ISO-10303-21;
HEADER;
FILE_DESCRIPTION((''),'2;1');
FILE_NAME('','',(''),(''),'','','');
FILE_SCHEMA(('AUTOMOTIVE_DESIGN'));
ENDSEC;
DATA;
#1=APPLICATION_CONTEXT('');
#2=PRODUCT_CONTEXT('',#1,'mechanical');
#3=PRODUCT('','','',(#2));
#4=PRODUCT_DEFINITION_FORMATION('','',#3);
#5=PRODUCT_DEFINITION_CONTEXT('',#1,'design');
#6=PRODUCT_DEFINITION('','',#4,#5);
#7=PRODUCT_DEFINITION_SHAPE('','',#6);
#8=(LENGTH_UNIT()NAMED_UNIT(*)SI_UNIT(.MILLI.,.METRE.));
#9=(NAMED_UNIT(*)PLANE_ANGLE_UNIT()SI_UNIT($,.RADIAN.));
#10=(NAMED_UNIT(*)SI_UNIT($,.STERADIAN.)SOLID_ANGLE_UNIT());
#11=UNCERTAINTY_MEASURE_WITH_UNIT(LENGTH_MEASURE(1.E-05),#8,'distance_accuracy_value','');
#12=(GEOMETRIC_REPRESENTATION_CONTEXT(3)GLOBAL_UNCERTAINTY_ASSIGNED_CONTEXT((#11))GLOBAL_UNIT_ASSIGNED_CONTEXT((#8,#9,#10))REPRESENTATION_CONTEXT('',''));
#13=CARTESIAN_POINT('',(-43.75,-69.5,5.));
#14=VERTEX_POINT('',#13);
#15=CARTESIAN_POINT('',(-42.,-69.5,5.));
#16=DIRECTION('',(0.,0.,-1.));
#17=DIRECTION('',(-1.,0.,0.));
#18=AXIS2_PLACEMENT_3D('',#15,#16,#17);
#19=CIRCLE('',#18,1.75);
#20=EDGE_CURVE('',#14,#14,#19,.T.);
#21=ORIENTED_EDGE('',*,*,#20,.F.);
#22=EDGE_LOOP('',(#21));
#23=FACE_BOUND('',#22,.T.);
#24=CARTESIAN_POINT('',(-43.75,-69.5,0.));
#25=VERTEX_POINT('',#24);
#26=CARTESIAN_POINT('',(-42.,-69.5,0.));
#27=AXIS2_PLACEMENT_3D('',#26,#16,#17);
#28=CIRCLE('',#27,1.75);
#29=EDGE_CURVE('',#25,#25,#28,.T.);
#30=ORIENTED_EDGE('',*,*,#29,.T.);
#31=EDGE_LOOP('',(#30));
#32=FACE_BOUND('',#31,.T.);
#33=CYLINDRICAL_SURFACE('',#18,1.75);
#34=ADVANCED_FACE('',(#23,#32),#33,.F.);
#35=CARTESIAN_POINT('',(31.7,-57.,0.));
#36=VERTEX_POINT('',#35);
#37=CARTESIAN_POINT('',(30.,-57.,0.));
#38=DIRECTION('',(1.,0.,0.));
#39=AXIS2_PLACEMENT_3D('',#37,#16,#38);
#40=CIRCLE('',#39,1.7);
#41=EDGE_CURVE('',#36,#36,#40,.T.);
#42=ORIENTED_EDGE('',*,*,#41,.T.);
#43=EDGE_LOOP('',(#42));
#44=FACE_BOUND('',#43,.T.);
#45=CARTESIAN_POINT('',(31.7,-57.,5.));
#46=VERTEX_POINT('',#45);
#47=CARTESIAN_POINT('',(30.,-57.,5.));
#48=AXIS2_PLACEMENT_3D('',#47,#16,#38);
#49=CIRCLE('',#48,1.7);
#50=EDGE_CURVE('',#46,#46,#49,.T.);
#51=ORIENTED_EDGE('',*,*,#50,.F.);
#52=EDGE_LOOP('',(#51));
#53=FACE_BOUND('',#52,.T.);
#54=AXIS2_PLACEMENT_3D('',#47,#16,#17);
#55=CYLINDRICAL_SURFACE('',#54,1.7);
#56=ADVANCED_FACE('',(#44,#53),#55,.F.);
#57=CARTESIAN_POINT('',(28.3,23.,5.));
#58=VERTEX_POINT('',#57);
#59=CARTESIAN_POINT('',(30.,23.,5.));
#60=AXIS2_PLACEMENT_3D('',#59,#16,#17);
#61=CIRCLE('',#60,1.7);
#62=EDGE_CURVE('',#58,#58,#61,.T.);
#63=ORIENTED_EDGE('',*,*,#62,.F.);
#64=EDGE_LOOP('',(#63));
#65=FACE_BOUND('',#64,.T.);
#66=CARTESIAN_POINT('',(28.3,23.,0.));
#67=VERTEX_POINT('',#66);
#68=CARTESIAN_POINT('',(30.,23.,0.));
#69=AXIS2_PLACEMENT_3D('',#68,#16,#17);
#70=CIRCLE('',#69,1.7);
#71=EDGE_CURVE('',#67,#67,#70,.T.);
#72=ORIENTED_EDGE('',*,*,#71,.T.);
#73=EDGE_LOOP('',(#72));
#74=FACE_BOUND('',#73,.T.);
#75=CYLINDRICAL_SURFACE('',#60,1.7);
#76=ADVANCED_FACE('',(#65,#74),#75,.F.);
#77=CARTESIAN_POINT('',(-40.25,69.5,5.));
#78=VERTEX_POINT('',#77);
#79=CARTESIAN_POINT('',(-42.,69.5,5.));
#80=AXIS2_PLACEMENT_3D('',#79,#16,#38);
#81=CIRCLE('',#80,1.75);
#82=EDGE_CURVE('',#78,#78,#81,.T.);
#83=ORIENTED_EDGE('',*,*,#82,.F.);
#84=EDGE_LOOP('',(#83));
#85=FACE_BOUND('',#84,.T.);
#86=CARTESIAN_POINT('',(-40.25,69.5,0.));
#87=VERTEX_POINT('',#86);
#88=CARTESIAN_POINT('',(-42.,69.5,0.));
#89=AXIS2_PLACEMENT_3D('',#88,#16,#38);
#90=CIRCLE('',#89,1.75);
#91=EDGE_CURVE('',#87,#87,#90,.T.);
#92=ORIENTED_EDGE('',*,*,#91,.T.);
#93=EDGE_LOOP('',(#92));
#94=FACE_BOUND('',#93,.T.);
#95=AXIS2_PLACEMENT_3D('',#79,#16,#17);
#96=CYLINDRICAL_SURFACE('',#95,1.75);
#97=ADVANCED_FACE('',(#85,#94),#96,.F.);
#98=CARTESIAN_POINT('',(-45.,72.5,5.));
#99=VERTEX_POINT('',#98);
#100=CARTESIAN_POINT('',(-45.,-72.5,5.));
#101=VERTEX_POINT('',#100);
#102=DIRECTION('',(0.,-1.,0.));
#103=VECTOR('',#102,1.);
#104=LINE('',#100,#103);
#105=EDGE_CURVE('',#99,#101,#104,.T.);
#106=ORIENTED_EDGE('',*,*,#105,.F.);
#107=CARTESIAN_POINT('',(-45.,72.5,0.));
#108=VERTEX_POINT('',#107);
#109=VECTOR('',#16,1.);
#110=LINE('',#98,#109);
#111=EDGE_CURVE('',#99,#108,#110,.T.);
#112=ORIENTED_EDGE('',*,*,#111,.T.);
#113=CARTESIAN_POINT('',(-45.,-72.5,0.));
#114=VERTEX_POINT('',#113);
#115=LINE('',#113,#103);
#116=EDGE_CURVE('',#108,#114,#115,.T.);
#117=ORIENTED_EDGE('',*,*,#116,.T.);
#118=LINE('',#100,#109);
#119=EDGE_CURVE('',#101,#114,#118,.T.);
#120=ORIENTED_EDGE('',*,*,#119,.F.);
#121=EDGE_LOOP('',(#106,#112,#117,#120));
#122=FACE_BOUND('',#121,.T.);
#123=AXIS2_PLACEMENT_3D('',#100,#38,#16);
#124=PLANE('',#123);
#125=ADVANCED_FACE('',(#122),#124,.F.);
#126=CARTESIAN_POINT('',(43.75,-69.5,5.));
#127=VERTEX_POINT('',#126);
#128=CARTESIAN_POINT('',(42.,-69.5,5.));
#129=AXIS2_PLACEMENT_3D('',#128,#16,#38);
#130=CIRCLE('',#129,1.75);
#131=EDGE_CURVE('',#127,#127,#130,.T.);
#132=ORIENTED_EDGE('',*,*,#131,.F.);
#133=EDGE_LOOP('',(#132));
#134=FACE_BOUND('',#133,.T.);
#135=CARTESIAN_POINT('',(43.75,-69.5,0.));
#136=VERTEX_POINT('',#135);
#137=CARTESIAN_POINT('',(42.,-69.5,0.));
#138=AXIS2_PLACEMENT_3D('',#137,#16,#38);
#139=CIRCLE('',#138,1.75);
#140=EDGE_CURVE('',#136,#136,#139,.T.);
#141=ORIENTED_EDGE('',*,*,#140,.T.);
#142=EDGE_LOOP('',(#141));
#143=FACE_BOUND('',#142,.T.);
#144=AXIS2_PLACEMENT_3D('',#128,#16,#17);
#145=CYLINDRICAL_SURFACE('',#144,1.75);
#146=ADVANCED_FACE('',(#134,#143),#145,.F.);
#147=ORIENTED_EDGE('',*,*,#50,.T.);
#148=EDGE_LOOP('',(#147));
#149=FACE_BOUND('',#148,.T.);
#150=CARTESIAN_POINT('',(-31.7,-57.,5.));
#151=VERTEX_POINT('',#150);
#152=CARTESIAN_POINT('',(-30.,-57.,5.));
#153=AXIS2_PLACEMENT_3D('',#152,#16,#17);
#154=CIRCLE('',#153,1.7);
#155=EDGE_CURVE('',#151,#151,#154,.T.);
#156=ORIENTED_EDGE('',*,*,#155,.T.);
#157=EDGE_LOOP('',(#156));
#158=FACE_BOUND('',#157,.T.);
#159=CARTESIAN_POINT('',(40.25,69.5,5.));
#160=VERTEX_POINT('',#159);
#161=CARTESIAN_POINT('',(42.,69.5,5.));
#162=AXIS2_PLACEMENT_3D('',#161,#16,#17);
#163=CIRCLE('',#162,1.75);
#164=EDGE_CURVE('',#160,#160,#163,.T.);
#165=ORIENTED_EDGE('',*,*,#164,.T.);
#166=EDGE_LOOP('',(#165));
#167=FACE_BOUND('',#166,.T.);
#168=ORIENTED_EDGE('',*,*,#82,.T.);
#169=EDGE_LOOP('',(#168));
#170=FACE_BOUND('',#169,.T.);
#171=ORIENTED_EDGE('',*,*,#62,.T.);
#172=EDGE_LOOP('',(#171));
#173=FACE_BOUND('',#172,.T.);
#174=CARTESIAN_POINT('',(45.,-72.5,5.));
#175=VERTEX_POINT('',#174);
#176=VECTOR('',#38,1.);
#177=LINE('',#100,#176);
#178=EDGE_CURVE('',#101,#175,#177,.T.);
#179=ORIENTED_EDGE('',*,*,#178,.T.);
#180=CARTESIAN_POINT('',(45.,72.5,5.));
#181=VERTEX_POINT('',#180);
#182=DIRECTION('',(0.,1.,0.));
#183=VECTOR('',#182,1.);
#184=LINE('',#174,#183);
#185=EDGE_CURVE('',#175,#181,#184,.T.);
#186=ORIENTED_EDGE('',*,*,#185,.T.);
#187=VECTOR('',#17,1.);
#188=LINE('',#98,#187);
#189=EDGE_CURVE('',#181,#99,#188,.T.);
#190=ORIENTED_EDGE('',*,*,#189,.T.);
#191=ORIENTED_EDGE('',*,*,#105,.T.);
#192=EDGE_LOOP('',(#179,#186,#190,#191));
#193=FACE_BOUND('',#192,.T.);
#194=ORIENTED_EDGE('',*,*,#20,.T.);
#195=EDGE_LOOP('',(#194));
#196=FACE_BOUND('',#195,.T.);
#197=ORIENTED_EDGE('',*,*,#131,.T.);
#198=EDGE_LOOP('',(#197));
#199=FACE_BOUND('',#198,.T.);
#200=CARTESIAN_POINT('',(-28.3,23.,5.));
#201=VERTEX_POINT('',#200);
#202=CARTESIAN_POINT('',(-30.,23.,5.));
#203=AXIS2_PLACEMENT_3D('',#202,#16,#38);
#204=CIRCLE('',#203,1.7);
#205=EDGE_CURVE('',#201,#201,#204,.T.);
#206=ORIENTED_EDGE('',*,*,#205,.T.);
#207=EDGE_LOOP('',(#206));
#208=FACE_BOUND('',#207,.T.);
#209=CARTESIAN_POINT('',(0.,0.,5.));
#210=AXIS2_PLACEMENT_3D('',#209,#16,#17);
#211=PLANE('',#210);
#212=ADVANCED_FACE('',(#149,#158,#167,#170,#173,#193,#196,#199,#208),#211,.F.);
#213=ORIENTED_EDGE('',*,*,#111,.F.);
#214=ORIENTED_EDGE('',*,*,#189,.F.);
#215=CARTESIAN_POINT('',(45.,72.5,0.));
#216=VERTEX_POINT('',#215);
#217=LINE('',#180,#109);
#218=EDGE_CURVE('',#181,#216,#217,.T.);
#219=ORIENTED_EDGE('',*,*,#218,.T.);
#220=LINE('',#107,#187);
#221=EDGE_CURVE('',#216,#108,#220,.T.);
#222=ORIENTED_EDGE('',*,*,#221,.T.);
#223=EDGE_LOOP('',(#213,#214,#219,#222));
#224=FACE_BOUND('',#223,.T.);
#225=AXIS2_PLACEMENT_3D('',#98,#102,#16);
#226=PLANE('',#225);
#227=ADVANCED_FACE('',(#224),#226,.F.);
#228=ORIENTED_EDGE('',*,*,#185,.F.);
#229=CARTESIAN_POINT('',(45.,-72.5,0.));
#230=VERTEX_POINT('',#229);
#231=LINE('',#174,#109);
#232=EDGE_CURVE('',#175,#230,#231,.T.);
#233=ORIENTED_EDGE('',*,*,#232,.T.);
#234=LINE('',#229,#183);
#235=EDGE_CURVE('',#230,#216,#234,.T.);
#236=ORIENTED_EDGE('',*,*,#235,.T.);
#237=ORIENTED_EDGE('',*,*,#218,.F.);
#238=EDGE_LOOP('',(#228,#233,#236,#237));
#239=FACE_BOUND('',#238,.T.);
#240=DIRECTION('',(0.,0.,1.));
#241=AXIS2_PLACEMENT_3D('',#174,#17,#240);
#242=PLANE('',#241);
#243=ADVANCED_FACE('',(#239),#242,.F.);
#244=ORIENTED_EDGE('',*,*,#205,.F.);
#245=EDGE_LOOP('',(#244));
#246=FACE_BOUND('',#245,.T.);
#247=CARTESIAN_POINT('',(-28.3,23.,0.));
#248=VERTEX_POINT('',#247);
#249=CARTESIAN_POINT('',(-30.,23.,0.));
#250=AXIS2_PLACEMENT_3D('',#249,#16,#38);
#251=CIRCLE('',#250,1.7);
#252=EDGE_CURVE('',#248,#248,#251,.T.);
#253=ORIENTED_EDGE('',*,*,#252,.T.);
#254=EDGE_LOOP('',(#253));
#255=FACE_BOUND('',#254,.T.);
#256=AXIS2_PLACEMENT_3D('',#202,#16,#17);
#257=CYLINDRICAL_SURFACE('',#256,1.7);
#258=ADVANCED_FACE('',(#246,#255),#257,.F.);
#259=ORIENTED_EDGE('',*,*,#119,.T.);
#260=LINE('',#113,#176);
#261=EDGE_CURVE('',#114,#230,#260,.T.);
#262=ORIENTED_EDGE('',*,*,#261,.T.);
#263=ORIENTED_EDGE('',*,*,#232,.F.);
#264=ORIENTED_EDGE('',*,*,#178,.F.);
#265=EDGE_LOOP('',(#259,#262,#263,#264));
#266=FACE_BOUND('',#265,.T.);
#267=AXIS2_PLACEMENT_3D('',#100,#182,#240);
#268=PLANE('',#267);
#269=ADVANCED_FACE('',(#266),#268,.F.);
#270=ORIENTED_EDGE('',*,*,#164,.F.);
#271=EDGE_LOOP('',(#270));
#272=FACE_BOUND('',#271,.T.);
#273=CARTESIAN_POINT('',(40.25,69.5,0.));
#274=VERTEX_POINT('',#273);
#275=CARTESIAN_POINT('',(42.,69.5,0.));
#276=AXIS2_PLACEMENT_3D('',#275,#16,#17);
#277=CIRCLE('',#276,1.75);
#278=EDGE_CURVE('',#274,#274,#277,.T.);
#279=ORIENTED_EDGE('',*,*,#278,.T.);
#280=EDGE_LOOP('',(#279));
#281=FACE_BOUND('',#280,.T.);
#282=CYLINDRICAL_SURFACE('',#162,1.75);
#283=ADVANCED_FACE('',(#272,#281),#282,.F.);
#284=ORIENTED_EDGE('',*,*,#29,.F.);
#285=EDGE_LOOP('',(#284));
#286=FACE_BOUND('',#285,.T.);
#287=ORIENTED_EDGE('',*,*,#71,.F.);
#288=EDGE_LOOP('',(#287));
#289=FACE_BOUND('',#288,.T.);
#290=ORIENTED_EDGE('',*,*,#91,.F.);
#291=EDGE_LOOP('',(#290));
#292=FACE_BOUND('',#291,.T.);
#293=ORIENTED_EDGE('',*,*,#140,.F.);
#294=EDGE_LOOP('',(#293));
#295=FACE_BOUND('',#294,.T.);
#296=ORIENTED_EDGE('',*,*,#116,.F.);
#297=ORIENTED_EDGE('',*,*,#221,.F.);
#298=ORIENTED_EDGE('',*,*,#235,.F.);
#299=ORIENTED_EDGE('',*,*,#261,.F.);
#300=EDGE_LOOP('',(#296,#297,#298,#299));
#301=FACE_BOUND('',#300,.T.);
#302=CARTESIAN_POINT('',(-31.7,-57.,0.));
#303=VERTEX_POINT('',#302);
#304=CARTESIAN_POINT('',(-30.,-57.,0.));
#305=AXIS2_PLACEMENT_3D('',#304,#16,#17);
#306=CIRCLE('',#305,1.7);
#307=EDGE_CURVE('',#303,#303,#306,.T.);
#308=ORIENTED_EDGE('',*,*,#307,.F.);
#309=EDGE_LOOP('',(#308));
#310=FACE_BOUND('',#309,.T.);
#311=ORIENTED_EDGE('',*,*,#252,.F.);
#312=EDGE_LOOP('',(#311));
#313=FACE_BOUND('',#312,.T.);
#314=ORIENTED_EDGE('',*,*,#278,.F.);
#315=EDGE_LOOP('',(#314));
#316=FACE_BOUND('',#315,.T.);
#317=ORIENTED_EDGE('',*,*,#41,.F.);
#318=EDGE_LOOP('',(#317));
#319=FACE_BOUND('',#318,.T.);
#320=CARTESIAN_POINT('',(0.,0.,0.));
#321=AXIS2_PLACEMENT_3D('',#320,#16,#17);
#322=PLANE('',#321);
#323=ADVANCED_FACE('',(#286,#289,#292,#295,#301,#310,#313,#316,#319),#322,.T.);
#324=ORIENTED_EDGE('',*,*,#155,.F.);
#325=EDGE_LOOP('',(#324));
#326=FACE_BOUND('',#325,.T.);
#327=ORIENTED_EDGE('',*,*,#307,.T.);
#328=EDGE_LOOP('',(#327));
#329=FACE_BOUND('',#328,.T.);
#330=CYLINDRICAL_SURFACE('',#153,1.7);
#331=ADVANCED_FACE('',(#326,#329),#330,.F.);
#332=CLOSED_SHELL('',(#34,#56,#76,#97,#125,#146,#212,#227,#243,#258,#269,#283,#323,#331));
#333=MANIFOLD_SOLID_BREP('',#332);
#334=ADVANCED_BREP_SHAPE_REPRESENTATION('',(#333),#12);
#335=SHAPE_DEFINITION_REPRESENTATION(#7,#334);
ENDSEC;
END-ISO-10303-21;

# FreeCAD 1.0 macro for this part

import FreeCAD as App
import Part
import Sketcher
Q = App.Units.Quantity


def add_polygon(sketch, points):
    """Adds a closed chain of lines whose ends are joined by coincident constraints."""
    first, n = sketch.GeometryCount, len(points)
    for a, b in zip(points, points[1:] + points[:1]):
        sketch.addGeometry(Part.LineSegment(App.Vector(*a, 0), App.Vector(*b, 0)), False)
    for i in range(n):
        sketch.addConstraint(Sketcher.Constraint("Coincident", first + i, 2, first + (i + 1) % n, 1))

doc = App.newDocument("Part")
params = doc.addObject("Spreadsheet::Sheet", "Params")
for row, (alias, value) in enumerate([
    ("sketch1_width", "90 mm"),
    ("sketch1_height", "145 mm"),
    ("pad1_length", "5 mm"),
    ("sketch2_diameter", "3.5 mm"),
    ("sketch3_diameter", "3.4 mm"),
], start=1):
    params.set(f"A{row}", alias)
    params.set(f"B{row}", "=" + value)
    params.setAlias(f"B{row}", alias)

body = doc.addObject("PartDesign::Body", "Body")

sketch1 = doc.addObject("Sketcher::SketchObject", "Sketch")
body.addObject(sketch1)
sketch1.AttachmentSupport = (doc.XY_Plane, [""])
sketch1.MapMode = "FlatFace"
add_polygon(sketch1, [(-45, 72), (-45, -72), (45, -72), (45, 72)])
sketch1.addConstraint(Sketcher.Constraint("Vertical", 0))
sketch1.addConstraint(Sketcher.Constraint("Horizontal", 1))
sketch1.addConstraint(Sketcher.Constraint("Vertical", 2))
sketch1.addConstraint(Sketcher.Constraint("Horizontal", 3))
sketch1.addConstraint(Sketcher.Constraint("Symmetric", 0, 2, 2, 2, -1, 1))
sketch1.addConstraint(Sketcher.Constraint("DistanceX", 1, 1, 1, 2, Q("90 mm")))
sketch1.addConstraint(Sketcher.Constraint("DistanceY", 0, 2, 0, 1, Q("145 mm")))
sketch1.setExpression("Constraints[9]", "Params.sketch1_width")
sketch1.setExpression("Constraints[10]", "Params.sketch1_height")
pad1 = doc.addObject("PartDesign::Pad", "Pad")
body.addObject(pad1)
pad1.Profile = sketch1
pad1.setExpression("Length", "Params.pad1_length")

sketch2 = doc.addObject("Sketcher::SketchObject", "Sketch001")
body.addObject(sketch2)
sketch2.AttachmentSupport = (doc.XY_Plane, [""])
sketch2.MapMode = "FlatFace"
sketch2.addGeometry(Part.Circle(App.Vector(42, 69.5, 0), App.Vector(0, 0, 1), 1.8), False)
sketch2.addGeometry(Part.Circle(App.Vector(42, -69.5, 0), App.Vector(0, 0, 1), 1.8), False)
sketch2.addGeometry(Part.Circle(App.Vector(-42, 69.5, 0), App.Vector(0, 0, 1), 1.8), False)
sketch2.addGeometry(Part.Circle(App.Vector(-42, -69.5, 0), App.Vector(0, 0, 1), 1.8), False)
sketch2.addConstraint(Sketcher.Constraint("Equal", 0, 1))
sketch2.addConstraint(Sketcher.Constraint("Equal", 1, 2))
sketch2.addConstraint(Sketcher.Constraint("Equal", 2, 3))
sketch2.addConstraint(Sketcher.Constraint("Symmetric", 1, 3, 2, 3, -1, 1))
sketch2.addConstraint(Sketcher.Constraint("Symmetric", 0, 3, 3, 3, -1, 1))
sketch2.addConstraint(Sketcher.Constraint("Symmetric", 0, 3, 2, 3, -2))
sketch2.addConstraint(Sketcher.Constraint("Diameter", 0, Q("3.5 mm")))
sketch2.addConstraint(Sketcher.Constraint("DistanceX", -1, 1, 0, 3, Q("42 mm")))
sketch2.addConstraint(Sketcher.Constraint("DistanceY", 1, 3, 0, 3, Q("139 mm")))
sketch2.setExpression("Constraints[6]", "Params.sketch2_diameter")
pocket1 = doc.addObject("PartDesign::Pocket", "Pocket")
body.addObject(pocket1)
pocket1.Profile = sketch2
pocket1.Type = "ThroughAll"
pocket1.Reversed = True

sketch3 = doc.addObject("Sketcher::SketchObject", "Sketch002")
body.addObject(sketch3)
sketch3.AttachmentSupport = (doc.XY_Plane, [""])
sketch3.MapMode = "FlatFace"
sketch3.addGeometry(Part.Circle(App.Vector(30, 23, 0), App.Vector(0, 0, 1), 1.7), False)
sketch3.addGeometry(Part.Circle(App.Vector(-30, 23, 0), App.Vector(0, 0, 1), 1.7), False)
sketch3.addGeometry(Part.Circle(App.Vector(-30, -57, 0), App.Vector(0, 0, 1), 1.7), False)
sketch3.addGeometry(Part.Circle(App.Vector(30, -57, 0), App.Vector(0, 0, 1), 1.7), False)
sketch3.addConstraint(Sketcher.Constraint("Equal", 0, 1))
sketch3.addConstraint(Sketcher.Constraint("Equal", 1, 2))
sketch3.addConstraint(Sketcher.Constraint("Equal", 2, 3))
sketch3.addConstraint(Sketcher.Constraint("Symmetric", 0, 3, 1, 3, -2))
sketch3.addConstraint(Sketcher.Constraint("Symmetric", 2, 3, 3, 3, -2))
sketch3.addConstraint(Sketcher.Constraint("Vertical", 1, 3, 2, 3))
sketch3.addConstraint(Sketcher.Constraint("Diameter", 0, Q("3.4 mm")))
sketch3.addConstraint(Sketcher.Constraint("DistanceX", -1, 1, 0, 3, Q("30 mm")))
sketch3.addConstraint(Sketcher.Constraint("DistanceY", -1, 1, 0, 3, Q("23 mm")))
sketch3.addConstraint(Sketcher.Constraint("DistanceY", 2, 3, -1, 1, Q("57 mm")))
sketch3.setExpression("Constraints[6]", "Params.sketch3_diameter")
pocket2 = doc.addObject("PartDesign::Pocket", "Pocket001")
body.addObject(pocket2)
pocket2.Profile = sketch3
pocket2.Type = "ThroughAll"
pocket2.Reversed = True

doc.recompute()
